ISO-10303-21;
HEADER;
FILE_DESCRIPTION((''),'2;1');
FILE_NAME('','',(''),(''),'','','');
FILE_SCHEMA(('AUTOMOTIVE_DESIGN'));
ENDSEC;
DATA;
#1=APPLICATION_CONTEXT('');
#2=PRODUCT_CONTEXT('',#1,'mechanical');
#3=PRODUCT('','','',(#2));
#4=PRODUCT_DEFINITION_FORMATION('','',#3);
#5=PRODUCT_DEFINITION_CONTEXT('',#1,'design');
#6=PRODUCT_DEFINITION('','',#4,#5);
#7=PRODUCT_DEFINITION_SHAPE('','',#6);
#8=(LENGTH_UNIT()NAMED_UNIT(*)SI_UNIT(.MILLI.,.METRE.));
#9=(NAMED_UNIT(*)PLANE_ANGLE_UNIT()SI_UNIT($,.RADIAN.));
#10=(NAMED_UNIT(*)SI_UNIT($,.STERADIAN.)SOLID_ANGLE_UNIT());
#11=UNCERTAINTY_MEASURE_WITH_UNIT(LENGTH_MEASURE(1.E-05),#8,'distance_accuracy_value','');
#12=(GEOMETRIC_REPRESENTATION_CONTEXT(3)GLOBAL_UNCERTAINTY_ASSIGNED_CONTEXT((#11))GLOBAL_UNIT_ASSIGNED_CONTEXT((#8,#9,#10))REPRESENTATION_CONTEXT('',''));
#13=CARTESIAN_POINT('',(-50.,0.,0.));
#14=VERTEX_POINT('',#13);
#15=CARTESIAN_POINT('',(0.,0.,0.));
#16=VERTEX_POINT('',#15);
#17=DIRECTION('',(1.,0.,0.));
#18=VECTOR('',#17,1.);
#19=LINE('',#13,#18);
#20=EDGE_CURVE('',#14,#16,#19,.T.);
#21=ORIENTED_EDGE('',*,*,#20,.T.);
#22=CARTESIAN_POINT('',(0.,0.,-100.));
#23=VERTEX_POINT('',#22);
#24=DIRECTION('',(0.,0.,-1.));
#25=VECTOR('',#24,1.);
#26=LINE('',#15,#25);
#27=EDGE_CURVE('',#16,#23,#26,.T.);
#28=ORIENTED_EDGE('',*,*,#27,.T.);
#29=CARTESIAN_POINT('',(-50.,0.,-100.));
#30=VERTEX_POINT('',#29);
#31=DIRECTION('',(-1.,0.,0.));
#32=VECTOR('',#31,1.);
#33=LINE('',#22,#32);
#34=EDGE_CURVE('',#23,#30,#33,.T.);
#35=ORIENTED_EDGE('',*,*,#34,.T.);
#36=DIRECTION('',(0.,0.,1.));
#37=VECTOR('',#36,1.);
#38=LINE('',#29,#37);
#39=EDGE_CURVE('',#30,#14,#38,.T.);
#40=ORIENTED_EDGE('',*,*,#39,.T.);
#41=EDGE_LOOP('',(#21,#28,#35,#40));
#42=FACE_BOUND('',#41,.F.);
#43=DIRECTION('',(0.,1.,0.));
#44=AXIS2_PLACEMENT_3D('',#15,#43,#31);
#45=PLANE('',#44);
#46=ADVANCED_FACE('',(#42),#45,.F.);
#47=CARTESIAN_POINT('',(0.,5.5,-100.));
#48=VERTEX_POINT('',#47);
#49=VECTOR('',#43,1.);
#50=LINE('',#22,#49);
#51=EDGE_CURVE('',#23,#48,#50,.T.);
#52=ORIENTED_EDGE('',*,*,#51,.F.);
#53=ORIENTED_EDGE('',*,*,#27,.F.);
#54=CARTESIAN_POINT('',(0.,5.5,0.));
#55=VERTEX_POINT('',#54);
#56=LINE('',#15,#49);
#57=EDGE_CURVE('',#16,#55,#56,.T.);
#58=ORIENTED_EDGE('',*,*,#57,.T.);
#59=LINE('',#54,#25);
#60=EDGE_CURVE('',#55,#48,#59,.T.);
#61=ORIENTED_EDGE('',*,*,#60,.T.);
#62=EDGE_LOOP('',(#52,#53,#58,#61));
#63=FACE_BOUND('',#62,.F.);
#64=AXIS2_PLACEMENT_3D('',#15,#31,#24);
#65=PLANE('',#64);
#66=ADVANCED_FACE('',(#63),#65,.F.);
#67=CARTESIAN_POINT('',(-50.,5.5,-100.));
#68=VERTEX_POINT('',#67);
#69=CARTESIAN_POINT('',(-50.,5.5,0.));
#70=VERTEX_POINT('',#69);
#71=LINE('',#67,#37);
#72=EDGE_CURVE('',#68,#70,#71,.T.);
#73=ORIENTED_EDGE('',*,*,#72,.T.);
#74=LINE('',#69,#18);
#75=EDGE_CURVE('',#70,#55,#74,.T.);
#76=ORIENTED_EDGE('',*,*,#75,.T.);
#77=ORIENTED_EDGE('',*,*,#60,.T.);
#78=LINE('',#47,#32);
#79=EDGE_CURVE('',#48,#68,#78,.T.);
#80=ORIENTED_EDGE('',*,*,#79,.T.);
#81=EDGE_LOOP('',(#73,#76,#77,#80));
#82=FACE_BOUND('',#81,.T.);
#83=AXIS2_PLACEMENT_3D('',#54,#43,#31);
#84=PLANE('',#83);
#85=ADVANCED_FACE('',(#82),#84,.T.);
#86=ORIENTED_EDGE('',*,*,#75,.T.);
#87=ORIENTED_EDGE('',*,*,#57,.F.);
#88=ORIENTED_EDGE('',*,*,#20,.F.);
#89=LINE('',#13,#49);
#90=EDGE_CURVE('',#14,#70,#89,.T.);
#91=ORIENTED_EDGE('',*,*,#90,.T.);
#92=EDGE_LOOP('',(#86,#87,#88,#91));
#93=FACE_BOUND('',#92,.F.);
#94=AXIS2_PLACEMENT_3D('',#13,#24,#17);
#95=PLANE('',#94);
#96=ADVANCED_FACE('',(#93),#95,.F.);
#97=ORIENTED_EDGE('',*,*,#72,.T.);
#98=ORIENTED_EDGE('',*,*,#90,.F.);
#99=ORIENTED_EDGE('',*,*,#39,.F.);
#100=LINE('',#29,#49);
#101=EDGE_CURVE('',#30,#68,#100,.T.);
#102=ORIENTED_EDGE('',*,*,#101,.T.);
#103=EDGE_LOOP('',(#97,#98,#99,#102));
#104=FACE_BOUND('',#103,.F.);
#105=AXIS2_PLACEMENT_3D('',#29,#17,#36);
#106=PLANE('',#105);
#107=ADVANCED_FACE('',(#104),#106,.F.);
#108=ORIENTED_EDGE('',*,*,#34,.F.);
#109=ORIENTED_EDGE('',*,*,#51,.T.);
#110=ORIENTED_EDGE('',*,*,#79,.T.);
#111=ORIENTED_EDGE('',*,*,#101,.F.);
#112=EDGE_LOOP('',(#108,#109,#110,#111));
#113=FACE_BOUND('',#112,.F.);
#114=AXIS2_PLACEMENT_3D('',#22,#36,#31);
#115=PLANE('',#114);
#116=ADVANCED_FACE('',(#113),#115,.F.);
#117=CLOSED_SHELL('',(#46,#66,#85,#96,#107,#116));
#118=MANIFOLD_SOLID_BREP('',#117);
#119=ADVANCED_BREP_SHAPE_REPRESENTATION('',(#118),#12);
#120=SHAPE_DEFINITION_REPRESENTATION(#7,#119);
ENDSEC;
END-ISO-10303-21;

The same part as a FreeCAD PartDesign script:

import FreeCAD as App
import Part
import Sketcher


def add_polygon(sketch, points):
    """Adds a closed chain of lines whose ends are joined by coincident constraints."""
    first, n = sketch.GeometryCount, len(points)
    for a, b in zip(points, points[1:] + points[:1]):
        sketch.addGeometry(Part.LineSegment(App.Vector(*a, 0), App.Vector(*b, 0)), False)
    for i in range(n):
        sketch.addConstraint(Sketcher.Constraint("Coincident", first + i, 2, first + (i + 1) % n, 1))

doc = App.newDocument("Part")
body = doc.addObject("PartDesign::Body", "Body")

# Sketch on XZ plane
sketch1 = doc.addObject("Sketcher::SketchObject", "Sketch")
body.addObject(sketch1)
sketch1.AttachmentSupport = (doc.XZ_Plane, [""])
sketch1.MapMode = "FlatFace"
add_polygon(sketch1, [(-50, 0), (0, 0), (0, -100), (-50, -100)])  # lines 0-3
sketch1.addConstraint(Sketcher.Constraint("Horizontal", 0))
sketch1.addConstraint(Sketcher.Constraint("Vertical", 1))
sketch1.addConstraint(Sketcher.Constraint("Horizontal", 2))
sketch1.addConstraint(Sketcher.Constraint("Vertical", 3))
sketch1.addConstraint(Sketcher.Constraint("Coincident", 0, 2, -1, 1))
sketch1.addConstraint(Sketcher.Constraint("DistanceX", 0, 1, 0, 2, 50.0))
sketch1.addConstraint(Sketcher.Constraint("DistanceY", 1, 2, 1, 1, 100.0))
pad1 = doc.addObject("PartDesign::Pad", "Pad")
body.addObject(pad1)
pad1.Profile = sketch1
pad1.Length = 5.5
pad1.Reversed = True

doc.recompute()
